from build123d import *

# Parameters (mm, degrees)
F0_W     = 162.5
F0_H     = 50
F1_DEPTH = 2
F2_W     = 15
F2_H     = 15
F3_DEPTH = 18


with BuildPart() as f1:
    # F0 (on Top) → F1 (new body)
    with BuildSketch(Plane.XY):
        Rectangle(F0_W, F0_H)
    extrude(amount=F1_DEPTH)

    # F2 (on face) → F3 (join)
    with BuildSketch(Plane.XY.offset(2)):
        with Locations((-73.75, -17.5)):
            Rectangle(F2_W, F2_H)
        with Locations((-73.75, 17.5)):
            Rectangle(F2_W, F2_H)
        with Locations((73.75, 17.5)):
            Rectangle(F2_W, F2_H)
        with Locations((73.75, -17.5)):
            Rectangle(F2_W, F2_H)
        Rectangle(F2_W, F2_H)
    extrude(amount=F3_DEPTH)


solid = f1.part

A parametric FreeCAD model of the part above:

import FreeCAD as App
import Part
import Sketcher
from FreeCAD import Vector
Q = App.Units.Quantity


def add_polygon(sketch, points):
    """Adds a closed chain of lines whose ends are joined by coincident constraints."""
    first, n = sketch.GeometryCount, len(points)
    for a, b in zip(points, points[1:] + points[:1]):
        sketch.addGeometry(Part.LineSegment(App.Vector(*a, 0), App.Vector(*b, 0)), False)
    for i in range(n):
        sketch.addConstraint(Sketcher.Constraint("Coincident", first + i, 2, first + (i + 1) % n, 1))

doc = App.newDocument("Part")
body = doc.addObject("PartDesign::Body", "Body")

sketch1 = doc.addObject("Sketcher::SketchObject", "Sketch")
body.addObject(sketch1)
sketch1.AttachmentSupport = (doc.XY_Plane, [""])
sketch1.MapMode = "FlatFace"
add_polygon(sketch1, [(-81, 25), (-81, -25), (81, -25), (81, 25)])
sketch1.addConstraint([
    Sketcher.Constraint("Vertical", 0),
    Sketcher.Constraint("Horizontal", 1),
    Sketcher.Constraint("Vertical", 2),
    Sketcher.Constraint("Horizontal", 3),
    Sketcher.Constraint("Symmetric", 0, 2, 2, 2, -1, 1),
    Sketcher.Constraint("DistanceY", 0, 2, 0, 1, Q("50 mm")),
    Sketcher.Constraint("DistanceX", 1, 1, 1, 2, Q("162.5 mm")),
])
pad1 = doc.addObject("PartDesign::Pad", "Pad")
body.addObject(pad1)
pad1.Profile = sketch1
pad1.Length = 2

sketch2 = doc.addObject("Sketcher::SketchObject", "Sketch001")
body.addObject(sketch2)
sketch2.AttachmentSupport = (doc.XY_Plane, [""])
sketch2.MapMode = "FlatFace"
sketch2.AttachmentOffset = App.Placement(Vector(0, 0, 2), App.Rotation())
add_polygon(sketch2, [(-81, -10), (-81, -25), (-66, -25), (-66, -10)])
add_polygon(sketch2, [(-81, 25), (-81, 10), (-66, 10), (-66, 25)])
add_polygon(sketch2, [(66, 25), (66, 10), (81, 10), (81, 25)])
add_polygon(sketch2, [(66, -10), (66, -25), (81, -25), (81, -10)])
add_polygon(sketch2, [(-8, 8), (-8, -8), (8, -8), (8, 8)])
sketch2.addConstraint([
    Sketcher.Constraint("Vertical", 0),
    Sketcher.Constraint("Horizontal", 1),
    Sketcher.Constraint("Vertical", 2),
    Sketcher.Constraint("Horizontal", 3),
    Sketcher.Constraint("Vertical", 4),
    Sketcher.Constraint("Horizontal", 5),
    Sketcher.Constraint("Vertical", 6),
    Sketcher.Constraint("Horizontal", 7),
    Sketcher.Constraint("Vertical", 8),
    Sketcher.Constraint("Horizontal", 9),
    Sketcher.Constraint("Vertical", 10),
    Sketcher.Constraint("Horizontal", 11),
    Sketcher.Constraint("Vertical", 12),
    Sketcher.Constraint("Horizontal", 13),
    Sketcher.Constraint("Vertical", 14),
    Sketcher.Constraint("Horizontal", 15),
    Sketcher.Constraint("Vertical", 16),
    Sketcher.Constraint("Horizontal", 17),
    Sketcher.Constraint("Vertical", 18),
    Sketcher.Constraint("Horizontal", 19),
    Sketcher.Constraint("Symmetric", 2, 2, 8, 2, -1, 1),
    Sketcher.Constraint("Symmetric", 0, 2, 10, 2, -1, 1),
    Sketcher.Constraint("Symmetric", 6, 2, 12, 2, -1, 1),
    Sketcher.Constraint("Symmetric", 4, 2, 14, 2, -1, 1),
    Sketcher.Constraint("Symmetric", 16, 2, 18, 2, -1, 1),
    Sketcher.Constraint("Symmetric", 5, 2, 8, 2, -2),
    Sketcher.Constraint("Symmetric", 7, 2, 10, 2, -2),
    Sketcher.Constraint("Equal", 15, 17),
    Sketcher.Constraint("Equal", 19, 0),
    Sketcher.Constraint("Equal", 14, 16),
    Sketcher.Constraint("DistanceX", 1, 1, 1, 2, Q("15 mm")),
    Sketcher.Constraint("DistanceY", 0, 2, -1, 1, Q("25 mm")),
    Sketcher.Constraint("DistanceX", 5, 2, 8, 2, Q("132.5 mm")),
])
pad2 = doc.addObject("PartDesign::Pad", "Pad001")
body.addObject(pad2)
pad2.Profile = sketch2
pad2.Length = 18

doc.recompute()
